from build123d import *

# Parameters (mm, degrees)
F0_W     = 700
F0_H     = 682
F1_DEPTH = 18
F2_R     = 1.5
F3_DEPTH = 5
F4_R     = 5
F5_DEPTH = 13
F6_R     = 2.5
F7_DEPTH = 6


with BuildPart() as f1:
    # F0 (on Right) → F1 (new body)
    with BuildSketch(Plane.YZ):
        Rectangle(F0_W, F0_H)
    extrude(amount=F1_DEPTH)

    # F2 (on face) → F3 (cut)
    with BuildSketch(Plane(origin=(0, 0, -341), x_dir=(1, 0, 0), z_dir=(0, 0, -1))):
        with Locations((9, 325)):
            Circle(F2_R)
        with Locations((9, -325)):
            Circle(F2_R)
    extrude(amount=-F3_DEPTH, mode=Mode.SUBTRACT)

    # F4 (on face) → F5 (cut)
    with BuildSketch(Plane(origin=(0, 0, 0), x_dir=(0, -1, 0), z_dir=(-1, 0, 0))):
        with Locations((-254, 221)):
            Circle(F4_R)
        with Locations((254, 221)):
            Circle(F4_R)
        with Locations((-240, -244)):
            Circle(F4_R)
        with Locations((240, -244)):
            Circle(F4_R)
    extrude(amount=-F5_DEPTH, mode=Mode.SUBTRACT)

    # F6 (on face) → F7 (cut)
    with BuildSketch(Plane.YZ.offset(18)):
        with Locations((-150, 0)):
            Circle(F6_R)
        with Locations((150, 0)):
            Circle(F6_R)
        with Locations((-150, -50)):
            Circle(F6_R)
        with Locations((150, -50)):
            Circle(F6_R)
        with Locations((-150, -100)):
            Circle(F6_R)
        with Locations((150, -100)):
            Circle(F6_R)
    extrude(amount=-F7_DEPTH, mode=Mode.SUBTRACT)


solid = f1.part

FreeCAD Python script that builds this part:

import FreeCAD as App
import Part
import Sketcher


def add_polygon(sketch, points):
    """Adds a closed chain of lines whose ends are joined by coincident constraints."""
    first, n = sketch.GeometryCount, len(points)
    for a, b in zip(points, points[1:] + points[:1]):
        sketch.addGeometry(Part.LineSegment(App.Vector(*a, 0), App.Vector(*b, 0)), False)
    for i in range(n):
        sketch.addConstraint(Sketcher.Constraint("Coincident", first + i, 2, first + (i + 1) % n, 1))

doc = App.newDocument("Part")
body = doc.addObject("PartDesign::Body", "Body")

# Sketch on YZ plane
sketch1 = body.newObject("Sketcher::SketchObject", "Sketch")
sketch1.AttachmentSupport = (doc.getObject("YZ_Plane"), [""])
sketch1.MapMode = "FlatFace"
add_polygon(sketch1, [(-350, 341), (-350, -341), (350, -341), (350, 341)])  # lines 0-3
sketch1.addConstraint([
    Sketcher.Constraint("Vertical", 0),
    Sketcher.Constraint("Horizontal", 1),
    Sketcher.Constraint("Vertical", 2),
    Sketcher.Constraint("Horizontal", 3),
    Sketcher.Constraint("Symmetric", 0, 2, 2, 2, -1, 1),
    Sketcher.Constraint("DistanceX", 1, 1, 1, 2, 700.0),
    Sketcher.Constraint("DistanceY", 0, 2, 0, 1, 682.0),
])
pad1 = body.newObject("PartDesign::Pad", "Pad")
pad1.Profile = sketch1
pad1.Length = 18

# Sketch on XY plane
sketch2 = body.newObject("Sketcher::SketchObject", "Sketch001")
sketch2.AttachmentSupport = (doc.getObject("XY_Plane"), [""])
sketch2.MapMode = "FlatFace"
sketch2.AttachmentOffset = App.Placement(App.Vector(0, 0, -341), App.Rotation())
sketch2.addGeometry([
    Part.Circle(App.Vector(9, -325, 0), App.Vector(0, 0, 1), 1.5),
    Part.Circle(App.Vector(9, 325, 0), App.Vector(0, 0, 1), 1.5),
], False)
sketch2.addConstraint([
    Sketcher.Constraint("Equal", 0, 1),
    Sketcher.Constraint("Symmetric", 0, 3, 1, 3, -1),
    Sketcher.Constraint("Diameter", 0, 3.0),
    Sketcher.Constraint("DistanceX", -1, 1, 0, 3, 9.0),
    Sketcher.Constraint("DistanceY", 0, 3, -1, 1, 325.0),
])
pocket1 = body.newObject("PartDesign::Pocket", "Pocket")
pocket1.Profile = sketch2
pocket1.Length = 5
pocket1.Reversed = True

# Sketch on YZ plane
sketch3 = body.newObject("Sketcher::SketchObject", "Sketch002")
sketch3.AttachmentSupport = (doc.getObject("YZ_Plane"), [""])
sketch3.MapMode = "FlatFace"
sketch3.addGeometry([
    Part.Circle(App.Vector(254, 221, 0), App.Vector(0, 0, 1), 5),
    Part.Circle(App.Vector(-254, 221, 0), App.Vector(0, 0, 1), 5),
    Part.Circle(App.Vector(240, -244, 0), App.Vector(0, 0, 1), 5),
    Part.Circle(App.Vector(-240, -244, 0), App.Vector(0, 0, 1), 5),
], False)
sketch3.addConstraint([
    Sketcher.Constraint("Equal", 0, 1),
    Sketcher.Constraint("Equal", 1, 2),
    Sketcher.Constraint("Equal", 2, 3),
    Sketcher.Constraint("Symmetric", 0, 3, 1, 3, -2),
    Sketcher.Constraint("Symmetric", 2, 3, 3, 3, -2),
    Sketcher.Constraint("Diameter", 0, 10.0),
    Sketcher.Constraint("DistanceX", -1, 1, 0, 3, 254.0),
    Sketcher.Constraint("DistanceY", -1, 1, 0, 3, 221.0),
    Sketcher.Constraint("DistanceX", -1, 1, 2, 3, 240.0),
    Sketcher.Constraint("DistanceY", 2, 3, -1, 1, 244.0),
])
pocket2 = body.newObject("PartDesign::Pocket", "Pocket001")
pocket2.Profile = sketch3
pocket2.Length = 13
pocket2.Reversed = True

# Sketch on YZ plane
sketch4 = body.newObject("Sketcher::SketchObject", "Sketch003")
sketch4.AttachmentSupport = (doc.getObject("YZ_Plane"), [""])
sketch4.MapMode = "FlatFace"
sketch4.AttachmentOffset = App.Placement(App.Vector(0, 0, 18), App.Rotation())
sketch4.addGeometry([
    Part.Circle(App.Vector(-150, 0, 0), App.Vector(0, 0, 1), 2.5),  # 0
    Part.Circle(App.Vector(150, 0, 0), App.Vector(0, 0, 1), 2.5),  # 1
    Part.Circle(App.Vector(-150, -50, 0), App.Vector(0, 0, 1), 2.5),  # 2
    Part.Circle(App.Vector(150, -50, 0), App.Vector(0, 0, 1), 2.5),  # 3
    Part.Circle(App.Vector(-150, -100, 0), App.Vector(0, 0, 1), 2.5),  # 4
    Part.Circle(App.Vector(150, -100, 0), App.Vector(0, 0, 1), 2.5),  # 5
], False)
sketch4.addConstraint([
    Sketcher.Constraint("Equal", 0, 1),
    Sketcher.Constraint("Equal", 1, 2),
    Sketcher.Constraint("Equal", 2, 3),
    Sketcher.Constraint("Equal", 3, 4),
    Sketcher.Constraint("Equal", 4, 5),
    Sketcher.Constraint("Symmetric", 0, 3, 1, 3, -1, 1),
    Sketcher.Constraint("Symmetric", 2, 3, 3, 3, -2),
    Sketcher.Constraint("Symmetric", 4, 3, 5, 3, -2),
    Sketcher.Constraint("PointOnObject", 0, 3, -1),
    Sketcher.Constraint("Vertical", 0, 3, 2, 3),
    Sketcher.Constraint("Vertical", 2, 3, 4, 3),
    Sketcher.Constraint("Diameter", 0, 5.0),
    Sketcher.Constraint("DistanceX", 0, 3, -1, 1, 150.0),
    Sketcher.Constraint("DistanceY", 2, 3, -1, 1, 50.0),
    Sketcher.Constraint("DistanceY", 4, 3, -1, 1, 100.0),
])
pocket3 = body.newObject("PartDesign::Pocket", "Pocket002")
pocket3.Profile = sketch4
pocket3.Length = 6

doc.recompute()
